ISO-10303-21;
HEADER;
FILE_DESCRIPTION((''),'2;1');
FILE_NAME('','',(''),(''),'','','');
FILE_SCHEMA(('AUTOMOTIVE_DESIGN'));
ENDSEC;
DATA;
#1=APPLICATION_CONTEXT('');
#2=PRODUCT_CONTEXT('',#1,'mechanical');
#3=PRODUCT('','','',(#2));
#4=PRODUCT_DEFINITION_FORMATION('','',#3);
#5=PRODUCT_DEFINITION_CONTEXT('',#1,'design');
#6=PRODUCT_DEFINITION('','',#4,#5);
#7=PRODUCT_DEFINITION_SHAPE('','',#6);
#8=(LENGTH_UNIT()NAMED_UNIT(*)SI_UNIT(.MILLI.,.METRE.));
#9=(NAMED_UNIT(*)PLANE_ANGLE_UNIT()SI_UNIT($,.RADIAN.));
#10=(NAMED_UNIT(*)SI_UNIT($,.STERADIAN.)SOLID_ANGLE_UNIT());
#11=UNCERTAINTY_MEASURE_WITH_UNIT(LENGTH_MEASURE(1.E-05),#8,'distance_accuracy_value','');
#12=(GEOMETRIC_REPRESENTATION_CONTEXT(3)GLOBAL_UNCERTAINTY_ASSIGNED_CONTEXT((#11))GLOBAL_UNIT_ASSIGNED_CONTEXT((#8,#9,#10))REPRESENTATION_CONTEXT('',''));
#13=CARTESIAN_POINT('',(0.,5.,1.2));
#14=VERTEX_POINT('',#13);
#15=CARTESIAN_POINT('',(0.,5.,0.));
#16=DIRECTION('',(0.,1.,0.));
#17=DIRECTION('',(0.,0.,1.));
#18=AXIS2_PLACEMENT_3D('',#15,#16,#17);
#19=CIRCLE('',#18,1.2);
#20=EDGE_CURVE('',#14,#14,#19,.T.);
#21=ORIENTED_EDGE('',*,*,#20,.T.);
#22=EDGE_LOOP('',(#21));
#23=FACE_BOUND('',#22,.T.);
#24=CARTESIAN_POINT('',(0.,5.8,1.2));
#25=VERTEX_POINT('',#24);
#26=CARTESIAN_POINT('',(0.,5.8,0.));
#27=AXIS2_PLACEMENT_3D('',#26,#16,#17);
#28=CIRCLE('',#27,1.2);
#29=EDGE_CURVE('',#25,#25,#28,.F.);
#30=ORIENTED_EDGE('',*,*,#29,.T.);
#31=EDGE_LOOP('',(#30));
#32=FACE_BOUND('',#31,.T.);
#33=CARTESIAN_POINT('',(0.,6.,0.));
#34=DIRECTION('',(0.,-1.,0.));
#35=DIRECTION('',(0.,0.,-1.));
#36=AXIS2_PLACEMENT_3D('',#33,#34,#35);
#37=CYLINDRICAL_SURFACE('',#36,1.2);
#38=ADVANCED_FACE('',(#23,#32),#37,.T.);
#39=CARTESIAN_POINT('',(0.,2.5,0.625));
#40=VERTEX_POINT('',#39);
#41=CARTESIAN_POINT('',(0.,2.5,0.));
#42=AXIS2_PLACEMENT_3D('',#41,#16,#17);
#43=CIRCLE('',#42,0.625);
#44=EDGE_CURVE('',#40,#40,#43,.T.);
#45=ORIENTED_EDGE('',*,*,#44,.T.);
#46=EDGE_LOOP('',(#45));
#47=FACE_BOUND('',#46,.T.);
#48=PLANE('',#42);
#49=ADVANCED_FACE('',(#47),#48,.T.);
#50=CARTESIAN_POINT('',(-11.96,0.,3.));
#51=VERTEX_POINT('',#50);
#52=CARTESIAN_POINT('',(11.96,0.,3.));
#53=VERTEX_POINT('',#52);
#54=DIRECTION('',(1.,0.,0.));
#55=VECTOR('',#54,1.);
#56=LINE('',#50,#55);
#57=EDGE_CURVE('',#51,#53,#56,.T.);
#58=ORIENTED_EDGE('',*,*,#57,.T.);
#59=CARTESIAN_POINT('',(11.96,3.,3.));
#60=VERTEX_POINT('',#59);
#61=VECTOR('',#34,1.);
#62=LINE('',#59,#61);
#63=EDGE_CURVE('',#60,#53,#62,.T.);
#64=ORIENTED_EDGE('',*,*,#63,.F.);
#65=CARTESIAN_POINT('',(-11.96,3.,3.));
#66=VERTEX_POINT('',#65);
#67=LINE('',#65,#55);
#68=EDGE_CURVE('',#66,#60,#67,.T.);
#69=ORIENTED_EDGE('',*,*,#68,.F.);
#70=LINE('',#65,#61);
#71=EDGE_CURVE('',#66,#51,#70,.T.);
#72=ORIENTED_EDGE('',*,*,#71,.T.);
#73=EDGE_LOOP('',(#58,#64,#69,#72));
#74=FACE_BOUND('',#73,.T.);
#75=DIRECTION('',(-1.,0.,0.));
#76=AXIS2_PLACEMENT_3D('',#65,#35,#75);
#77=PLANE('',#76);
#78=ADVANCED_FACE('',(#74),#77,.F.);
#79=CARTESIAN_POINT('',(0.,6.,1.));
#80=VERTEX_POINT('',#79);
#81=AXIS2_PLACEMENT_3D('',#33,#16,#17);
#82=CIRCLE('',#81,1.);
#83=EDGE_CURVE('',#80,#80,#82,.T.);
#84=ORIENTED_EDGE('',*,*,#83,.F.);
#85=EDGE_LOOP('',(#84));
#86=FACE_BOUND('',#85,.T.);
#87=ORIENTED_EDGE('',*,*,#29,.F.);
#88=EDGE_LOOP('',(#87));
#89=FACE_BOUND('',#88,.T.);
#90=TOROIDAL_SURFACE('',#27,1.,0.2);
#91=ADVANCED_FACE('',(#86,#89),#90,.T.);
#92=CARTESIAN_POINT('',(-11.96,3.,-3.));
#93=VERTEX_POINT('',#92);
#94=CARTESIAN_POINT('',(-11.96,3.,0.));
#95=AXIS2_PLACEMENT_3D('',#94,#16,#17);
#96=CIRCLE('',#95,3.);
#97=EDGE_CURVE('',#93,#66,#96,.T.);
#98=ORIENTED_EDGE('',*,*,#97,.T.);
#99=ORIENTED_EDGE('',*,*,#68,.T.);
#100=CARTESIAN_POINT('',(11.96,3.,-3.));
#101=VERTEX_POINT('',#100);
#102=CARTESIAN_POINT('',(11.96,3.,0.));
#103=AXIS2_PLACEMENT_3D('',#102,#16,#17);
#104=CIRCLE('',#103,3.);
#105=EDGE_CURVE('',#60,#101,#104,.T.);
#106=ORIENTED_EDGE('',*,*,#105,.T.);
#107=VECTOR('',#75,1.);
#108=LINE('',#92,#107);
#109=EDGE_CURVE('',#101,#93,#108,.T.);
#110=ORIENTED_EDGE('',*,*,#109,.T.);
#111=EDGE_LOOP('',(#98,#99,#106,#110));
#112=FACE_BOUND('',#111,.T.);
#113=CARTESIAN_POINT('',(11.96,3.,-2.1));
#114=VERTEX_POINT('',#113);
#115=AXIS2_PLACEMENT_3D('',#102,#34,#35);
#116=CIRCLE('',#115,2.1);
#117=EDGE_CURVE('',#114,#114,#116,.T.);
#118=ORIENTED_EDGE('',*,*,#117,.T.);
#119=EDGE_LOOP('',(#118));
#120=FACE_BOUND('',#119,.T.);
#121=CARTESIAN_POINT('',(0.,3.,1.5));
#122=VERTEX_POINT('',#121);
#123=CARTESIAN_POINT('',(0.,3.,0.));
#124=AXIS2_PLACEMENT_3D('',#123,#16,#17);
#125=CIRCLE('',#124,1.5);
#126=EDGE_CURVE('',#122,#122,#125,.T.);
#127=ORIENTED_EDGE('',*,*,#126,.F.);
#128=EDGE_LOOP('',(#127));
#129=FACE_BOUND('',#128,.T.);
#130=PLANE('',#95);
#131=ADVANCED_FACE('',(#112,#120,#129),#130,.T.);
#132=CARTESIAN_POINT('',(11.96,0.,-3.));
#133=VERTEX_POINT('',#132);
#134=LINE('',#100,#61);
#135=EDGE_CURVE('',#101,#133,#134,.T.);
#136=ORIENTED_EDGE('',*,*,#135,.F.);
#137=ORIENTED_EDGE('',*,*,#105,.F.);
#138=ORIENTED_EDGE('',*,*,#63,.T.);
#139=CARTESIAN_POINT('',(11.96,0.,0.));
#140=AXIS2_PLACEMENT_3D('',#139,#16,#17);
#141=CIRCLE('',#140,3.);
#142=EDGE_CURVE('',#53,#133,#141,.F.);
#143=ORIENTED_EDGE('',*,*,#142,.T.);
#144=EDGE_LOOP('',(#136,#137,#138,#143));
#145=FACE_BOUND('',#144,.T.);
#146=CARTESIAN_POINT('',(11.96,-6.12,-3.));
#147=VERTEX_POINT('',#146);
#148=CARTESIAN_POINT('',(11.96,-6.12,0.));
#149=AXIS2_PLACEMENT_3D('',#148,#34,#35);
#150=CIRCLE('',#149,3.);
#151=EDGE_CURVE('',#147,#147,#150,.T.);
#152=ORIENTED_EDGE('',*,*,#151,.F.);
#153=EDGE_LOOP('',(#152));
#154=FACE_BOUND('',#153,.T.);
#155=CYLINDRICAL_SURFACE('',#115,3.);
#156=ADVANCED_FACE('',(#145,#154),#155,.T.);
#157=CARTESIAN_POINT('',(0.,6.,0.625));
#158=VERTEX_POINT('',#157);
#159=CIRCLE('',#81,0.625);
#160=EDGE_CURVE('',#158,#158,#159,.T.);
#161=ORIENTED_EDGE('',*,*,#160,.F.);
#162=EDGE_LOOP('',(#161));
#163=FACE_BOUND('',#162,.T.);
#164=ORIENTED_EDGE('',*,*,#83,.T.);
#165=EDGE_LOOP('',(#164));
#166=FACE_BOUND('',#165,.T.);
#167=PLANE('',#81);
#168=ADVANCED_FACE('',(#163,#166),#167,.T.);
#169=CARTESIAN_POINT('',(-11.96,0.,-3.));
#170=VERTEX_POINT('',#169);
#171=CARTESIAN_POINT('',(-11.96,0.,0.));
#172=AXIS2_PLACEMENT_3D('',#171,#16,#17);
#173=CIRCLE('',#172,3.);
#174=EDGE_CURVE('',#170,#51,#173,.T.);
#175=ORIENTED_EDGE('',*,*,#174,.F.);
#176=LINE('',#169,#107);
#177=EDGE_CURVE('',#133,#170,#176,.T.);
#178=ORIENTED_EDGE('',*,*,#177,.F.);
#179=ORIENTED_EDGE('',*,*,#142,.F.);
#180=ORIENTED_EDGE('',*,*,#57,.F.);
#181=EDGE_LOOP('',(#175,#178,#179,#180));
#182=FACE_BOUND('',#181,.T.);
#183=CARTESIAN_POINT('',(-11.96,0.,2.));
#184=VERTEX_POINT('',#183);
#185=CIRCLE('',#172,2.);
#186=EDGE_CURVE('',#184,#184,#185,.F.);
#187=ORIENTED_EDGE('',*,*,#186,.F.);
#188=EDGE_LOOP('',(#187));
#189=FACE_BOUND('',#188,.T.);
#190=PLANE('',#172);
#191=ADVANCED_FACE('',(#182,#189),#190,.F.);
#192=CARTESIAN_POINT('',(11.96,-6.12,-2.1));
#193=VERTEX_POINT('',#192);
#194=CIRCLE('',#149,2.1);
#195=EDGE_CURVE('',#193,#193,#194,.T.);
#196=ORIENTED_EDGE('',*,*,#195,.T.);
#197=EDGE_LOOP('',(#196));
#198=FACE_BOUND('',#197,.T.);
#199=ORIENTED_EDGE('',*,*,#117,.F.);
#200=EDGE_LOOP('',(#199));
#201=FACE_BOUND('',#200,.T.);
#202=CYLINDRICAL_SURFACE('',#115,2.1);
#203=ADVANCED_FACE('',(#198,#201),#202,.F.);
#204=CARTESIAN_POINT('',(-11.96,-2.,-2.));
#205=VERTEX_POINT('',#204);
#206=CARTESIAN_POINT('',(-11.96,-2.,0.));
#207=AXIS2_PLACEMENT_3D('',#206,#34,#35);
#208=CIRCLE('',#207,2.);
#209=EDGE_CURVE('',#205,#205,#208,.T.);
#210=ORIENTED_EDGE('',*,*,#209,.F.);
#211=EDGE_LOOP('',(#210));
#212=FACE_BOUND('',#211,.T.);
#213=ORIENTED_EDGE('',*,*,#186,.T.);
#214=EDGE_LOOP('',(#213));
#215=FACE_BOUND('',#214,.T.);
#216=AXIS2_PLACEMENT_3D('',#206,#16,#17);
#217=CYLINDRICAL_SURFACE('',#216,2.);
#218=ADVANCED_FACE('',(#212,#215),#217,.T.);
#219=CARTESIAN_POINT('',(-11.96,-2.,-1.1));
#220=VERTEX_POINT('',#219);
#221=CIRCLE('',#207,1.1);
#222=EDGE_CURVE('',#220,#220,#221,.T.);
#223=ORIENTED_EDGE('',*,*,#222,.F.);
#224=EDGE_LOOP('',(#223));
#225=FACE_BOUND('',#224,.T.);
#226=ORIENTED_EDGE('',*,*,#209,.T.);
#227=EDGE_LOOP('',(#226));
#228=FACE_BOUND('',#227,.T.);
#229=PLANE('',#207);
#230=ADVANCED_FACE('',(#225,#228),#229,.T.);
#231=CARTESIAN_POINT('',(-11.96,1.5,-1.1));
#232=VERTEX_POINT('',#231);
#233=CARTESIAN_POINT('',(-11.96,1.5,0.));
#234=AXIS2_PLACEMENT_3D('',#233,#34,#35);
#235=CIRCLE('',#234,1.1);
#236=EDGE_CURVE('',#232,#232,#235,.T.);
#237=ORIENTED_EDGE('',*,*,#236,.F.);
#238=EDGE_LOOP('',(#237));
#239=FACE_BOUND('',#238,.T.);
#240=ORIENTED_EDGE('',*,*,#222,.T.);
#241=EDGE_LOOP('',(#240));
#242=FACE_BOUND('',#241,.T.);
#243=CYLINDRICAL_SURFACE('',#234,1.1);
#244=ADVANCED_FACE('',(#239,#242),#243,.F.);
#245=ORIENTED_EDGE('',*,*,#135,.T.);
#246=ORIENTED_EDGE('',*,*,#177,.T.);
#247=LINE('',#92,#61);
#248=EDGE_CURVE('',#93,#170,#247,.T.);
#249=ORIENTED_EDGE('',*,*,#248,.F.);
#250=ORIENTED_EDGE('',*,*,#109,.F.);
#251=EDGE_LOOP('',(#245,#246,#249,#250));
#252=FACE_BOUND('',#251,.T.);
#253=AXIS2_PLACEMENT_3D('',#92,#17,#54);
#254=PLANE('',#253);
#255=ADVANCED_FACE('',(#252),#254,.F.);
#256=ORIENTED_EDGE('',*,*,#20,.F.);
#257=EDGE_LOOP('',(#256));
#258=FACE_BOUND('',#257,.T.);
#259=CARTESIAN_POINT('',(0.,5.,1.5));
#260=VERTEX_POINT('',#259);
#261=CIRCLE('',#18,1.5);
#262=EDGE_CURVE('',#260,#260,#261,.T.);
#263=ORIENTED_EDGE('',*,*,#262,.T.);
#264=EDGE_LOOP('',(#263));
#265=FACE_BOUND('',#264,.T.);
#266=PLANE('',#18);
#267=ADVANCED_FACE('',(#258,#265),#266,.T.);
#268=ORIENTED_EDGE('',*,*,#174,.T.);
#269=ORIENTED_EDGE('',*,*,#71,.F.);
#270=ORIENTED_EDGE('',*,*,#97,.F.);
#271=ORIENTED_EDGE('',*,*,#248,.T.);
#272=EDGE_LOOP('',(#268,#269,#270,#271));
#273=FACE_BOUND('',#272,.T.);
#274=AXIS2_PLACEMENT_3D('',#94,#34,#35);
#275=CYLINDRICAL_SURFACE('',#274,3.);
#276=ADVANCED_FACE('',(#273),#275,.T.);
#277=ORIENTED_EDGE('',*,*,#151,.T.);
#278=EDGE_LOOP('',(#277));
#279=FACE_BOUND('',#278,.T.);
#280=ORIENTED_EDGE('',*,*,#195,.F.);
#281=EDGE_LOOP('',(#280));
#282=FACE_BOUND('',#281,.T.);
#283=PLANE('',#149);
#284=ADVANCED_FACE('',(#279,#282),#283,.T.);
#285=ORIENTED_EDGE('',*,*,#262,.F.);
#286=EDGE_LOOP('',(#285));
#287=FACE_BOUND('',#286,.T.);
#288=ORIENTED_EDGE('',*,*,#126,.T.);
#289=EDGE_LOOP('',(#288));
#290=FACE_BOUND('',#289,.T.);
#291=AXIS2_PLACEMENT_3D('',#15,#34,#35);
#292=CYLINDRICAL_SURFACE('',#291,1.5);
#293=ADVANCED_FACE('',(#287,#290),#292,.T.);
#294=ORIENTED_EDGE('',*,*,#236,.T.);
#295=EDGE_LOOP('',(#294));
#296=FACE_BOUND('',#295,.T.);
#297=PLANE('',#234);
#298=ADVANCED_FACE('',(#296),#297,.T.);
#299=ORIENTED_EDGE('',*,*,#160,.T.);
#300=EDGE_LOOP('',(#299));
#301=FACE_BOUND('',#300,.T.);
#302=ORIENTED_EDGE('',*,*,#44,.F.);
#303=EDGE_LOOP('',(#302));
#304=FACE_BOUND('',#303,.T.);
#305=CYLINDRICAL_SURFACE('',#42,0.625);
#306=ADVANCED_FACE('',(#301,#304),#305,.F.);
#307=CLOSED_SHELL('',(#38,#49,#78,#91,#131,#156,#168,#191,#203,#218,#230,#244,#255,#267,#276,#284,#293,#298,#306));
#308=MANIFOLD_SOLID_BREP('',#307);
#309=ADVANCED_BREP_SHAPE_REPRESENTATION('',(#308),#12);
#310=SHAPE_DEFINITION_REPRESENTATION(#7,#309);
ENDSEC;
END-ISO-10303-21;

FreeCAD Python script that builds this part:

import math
import FreeCAD as App
import Part
import Sketcher


def edges_at(feature, points):
    """Names of the edges that pass closest to the given points."""
    edges = feature.Shape.Edges
    near = lambda p: min(range(len(edges)), key=lambda i: edges[i].distToShape(Part.Vertex(*p))[0])
    return sorted({f"Edge{near(p) + 1}" for p in points})

doc = App.newDocument("Part")
params = doc.addObject("Spreadsheet::Sheet", "Params")
for row, (alias, value) in enumerate([
    ("sketch1_radius", "3 mm"),
    ("sketch1_width", "23.92 mm"),
    ("pad1_length", "3 mm"),
    ("sketch2_diameter", "4 mm"),
    ("pad2_length", "2 mm"),
    ("sketch3_diameter", "2.2 mm"),
    ("pocket1_length", "3.5 mm"),
    ("sketch4_diameter", "6 mm"),
    ("pad3_length", "6.12 mm"),
    ("sketch5_diameter", "4.2 mm"),
    ("pocket2_length", "9.12 mm"),
    ("sketch6_diameter", "3 mm"),
    ("pad4_length", "2 mm"),
    ("sketch7_diameter", "2.4 mm"),
    ("pad5_length", "1 mm"),
    ("sketch8_diameter", "1.25 mm"),
    ("pocket3_length", "3.5 mm"),
    ("fillet_radius", "0.2 mm"),
], start=1):
    params.set(f"A{row}", alias)
    params.set(f"B{row}", "=" + value)
    params.setAlias(f"B{row}", alias)

body = doc.addObject("PartDesign::Body", "Body")

# Sketch on XZ plane
sketch1 = body.newObject("Sketcher::SketchObject", "Sketch")
sketch1.AttachmentSupport = (doc.getObject("XZ_Plane"), [""])
sketch1.MapMode = "FlatFace"
sketch1.addGeometry([
    Part.LineSegment(App.Vector(11.96, -3, 0), App.Vector(-11.96, -3, 0)),
    Part.ArcOfCircle(Part.Circle(App.Vector(-11.96, 0, 0), App.Vector(0, 0, 1), 3), math.radians(90), math.radians(270)),
    Part.LineSegment(App.Vector(-11.96, 3, 0), App.Vector(11.96, 3, 0)),
    Part.ArcOfCircle(Part.Circle(App.Vector(11.96, 0, 0), App.Vector(0, 0, 1), 3), math.radians(-90), math.radians(90)),
], False)
sketch1.addConstraint([
    Sketcher.Constraint("Tangent", 0, 2, 1, 2),
    Sketcher.Constraint("Tangent", 1, 1, 2, 1),
    Sketcher.Constraint("Tangent", 2, 2, 3, 2),
    Sketcher.Constraint("Tangent", 3, 1, 0, 1),
    Sketcher.Constraint("Horizontal", 0),
    Sketcher.Constraint("Horizontal", 2),
    Sketcher.Constraint("Symmetric", 1, 3, 3, 3, -1, 1),
    Sketcher.Constraint("Radius", 1, 3.0),
    Sketcher.Constraint("DistanceX", 0, 2, 0, 1, 23.92),
])
sketch1.setExpression("Constraints[7]", "Params.sketch1_radius")
sketch1.setExpression("Constraints[8]", "Params.sketch1_width")
pad1 = body.newObject("PartDesign::Pad", "Pad")
pad1.Profile = sketch1
pad1.setExpression("Length", "Params.pad1_length")
pad1.Reversed = True

# Sketch on XZ plane
sketch2 = body.newObject("Sketcher::SketchObject", "Sketch001")
sketch2.AttachmentSupport = (doc.getObject("XZ_Plane"), [""])
sketch2.MapMode = "FlatFace"
sketch2.addGeometry(Part.Circle(App.Vector(-11.96, 0, 0), App.Vector(0, 0, 1), 2), False)
sketch2.addConstraint([
    Sketcher.Constraint("PointOnObject", 0, 3, -1),
    Sketcher.Constraint("Diameter", 0, 4.0),
    Sketcher.Constraint("DistanceX", 0, 3, -1, 1, 11.96),
])
sketch2.setExpression("Constraints[1]", "Params.sketch2_diameter")
pad2 = body.newObject("PartDesign::Pad", "Pad001")
pad2.Profile = sketch2
pad2.setExpression("Length", "Params.pad2_length")

# Sketch on XZ plane
sketch3 = body.newObject("Sketcher::SketchObject", "Sketch002")
sketch3.AttachmentSupport = (doc.getObject("XZ_Plane"), [""])
sketch3.MapMode = "FlatFace"
sketch3.AttachmentOffset = App.Placement(App.Vector(0, 0, 2), App.Rotation())
sketch3.addGeometry(Part.Circle(App.Vector(-11.96, 0, 0), App.Vector(0, 0, 1), 1.1), False)
sketch3.addConstraint([
    Sketcher.Constraint("PointOnObject", 0, 3, -1),
    Sketcher.Constraint("Diameter", 0, 2.2),
    Sketcher.Constraint("DistanceX", 0, 3, -1, 1, 11.96),
])
sketch3.setExpression("Constraints[1]", "Params.sketch3_diameter")
pocket1 = body.newObject("PartDesign::Pocket", "Pocket")
pocket1.Profile = sketch3
pocket1.setExpression("Length", "Params.pocket1_length")

# Sketch on XZ plane
sketch4 = body.newObject("Sketcher::SketchObject", "Sketch003")
sketch4.AttachmentSupport = (doc.getObject("XZ_Plane"), [""])
sketch4.MapMode = "FlatFace"
sketch4.addGeometry(Part.Circle(App.Vector(11.96, 0, 0), App.Vector(0, 0, 1), 3), False)
sketch4.addConstraint([
    Sketcher.Constraint("PointOnObject", 0, 3, -1),
    Sketcher.Constraint("Diameter", 0, 6.0),
    Sketcher.Constraint("DistanceX", -1, 1, 0, 3, 11.96),
])
sketch4.setExpression("Constraints[1]", "Params.sketch4_diameter")
pad3 = body.newObject("PartDesign::Pad", "Pad002")
pad3.Profile = sketch4
pad3.setExpression("Length", "Params.pad3_length")

# Sketch on XZ plane
sketch5 = body.newObject("Sketcher::SketchObject", "Sketch004")
sketch5.AttachmentSupport = (doc.getObject("XZ_Plane"), [""])
sketch5.MapMode = "FlatFace"
sketch5.AttachmentOffset = App.Placement(App.Vector(0, 0, 6.12), App.Rotation())
sketch5.addGeometry(Part.Circle(App.Vector(11.96, 0, 0), App.Vector(0, 0, 1), 2.1), False)
sketch5.addConstraint([
    Sketcher.Constraint("PointOnObject", 0, 3, -1),
    Sketcher.Constraint("Diameter", 0, 4.2),
    Sketcher.Constraint("DistanceX", -1, 1, 0, 3, 11.96),
])
sketch5.setExpression("Constraints[1]", "Params.sketch5_diameter")
pocket2 = body.newObject("PartDesign::Pocket", "Pocket001")
pocket2.Profile = sketch5
pocket2.setExpression("Length", "Params.pocket2_length")

# Sketch on XZ plane
sketch6 = body.newObject("Sketcher::SketchObject", "Sketch005")
sketch6.AttachmentSupport = (doc.getObject("XZ_Plane"), [""])
sketch6.MapMode = "FlatFace"
sketch6.AttachmentOffset = App.Placement(App.Vector(0, 0, -3), App.Rotation())
sketch6.addGeometry(Part.Circle(App.Vector(0, 0, 0), App.Vector(0, 0, 1), 1.5), False)
sketch6.addConstraint([
    Sketcher.Constraint("Coincident", 0, 3, -1, 1),
    Sketcher.Constraint("Diameter", 0, 3.0),
])
sketch6.setExpression("Constraints[1]", "Params.sketch6_diameter")
pad4 = body.newObject("PartDesign::Pad", "Pad003")
pad4.Profile = sketch6
pad4.setExpression("Length", "Params.pad4_length")
pad4.Reversed = True

# Sketch on XZ plane
sketch7 = body.newObject("Sketcher::SketchObject", "Sketch006")
sketch7.AttachmentSupport = (doc.getObject("XZ_Plane"), [""])
sketch7.MapMode = "FlatFace"
sketch7.AttachmentOffset = App.Placement(App.Vector(0, 0, -5), App.Rotation())
sketch7.addGeometry(Part.Circle(App.Vector(0, 0, 0), App.Vector(0, 0, 1), 1.2), False)
sketch7.addConstraint([
    Sketcher.Constraint("Coincident", 0, 3, -1, 1),
    Sketcher.Constraint("Diameter", 0, 2.4),
])
sketch7.setExpression("Constraints[1]", "Params.sketch7_diameter")
pad5 = body.newObject("PartDesign::Pad", "Pad004")
pad5.Profile = sketch7
pad5.setExpression("Length", "Params.pad5_length")
pad5.Reversed = True

# Sketch on XZ plane
sketch8 = body.newObject("Sketcher::SketchObject", "Sketch007")
sketch8.AttachmentSupport = (doc.getObject("XZ_Plane"), [""])
sketch8.MapMode = "FlatFace"
sketch8.AttachmentOffset = App.Placement(App.Vector(0, 0, -6), App.Rotation())
sketch8.addGeometry(Part.Circle(App.Vector(0, 0, 0), App.Vector(0, 0, 1), 0.625), False)
sketch8.addConstraint([
    Sketcher.Constraint("Coincident", 0, 3, -1, 1),
    Sketcher.Constraint("Diameter", 0, 1.25),
])
sketch8.setExpression("Constraints[1]", "Params.sketch8_diameter")
pocket3 = body.newObject("PartDesign::Pocket", "Pocket002")
pocket3.Profile = sketch8
pocket3.setExpression("Length", "Params.pocket3_length")
pocket3.Reversed = True
doc.recompute()

fillet = body.newObject("PartDesign::Fillet", "Fillet")
fillet.Base = (pocket3, edges_at(pocket3, [(0, 6, -1.2)]))
fillet.setExpression("Radius", "Params.fillet_radius")

doc.recompute()
